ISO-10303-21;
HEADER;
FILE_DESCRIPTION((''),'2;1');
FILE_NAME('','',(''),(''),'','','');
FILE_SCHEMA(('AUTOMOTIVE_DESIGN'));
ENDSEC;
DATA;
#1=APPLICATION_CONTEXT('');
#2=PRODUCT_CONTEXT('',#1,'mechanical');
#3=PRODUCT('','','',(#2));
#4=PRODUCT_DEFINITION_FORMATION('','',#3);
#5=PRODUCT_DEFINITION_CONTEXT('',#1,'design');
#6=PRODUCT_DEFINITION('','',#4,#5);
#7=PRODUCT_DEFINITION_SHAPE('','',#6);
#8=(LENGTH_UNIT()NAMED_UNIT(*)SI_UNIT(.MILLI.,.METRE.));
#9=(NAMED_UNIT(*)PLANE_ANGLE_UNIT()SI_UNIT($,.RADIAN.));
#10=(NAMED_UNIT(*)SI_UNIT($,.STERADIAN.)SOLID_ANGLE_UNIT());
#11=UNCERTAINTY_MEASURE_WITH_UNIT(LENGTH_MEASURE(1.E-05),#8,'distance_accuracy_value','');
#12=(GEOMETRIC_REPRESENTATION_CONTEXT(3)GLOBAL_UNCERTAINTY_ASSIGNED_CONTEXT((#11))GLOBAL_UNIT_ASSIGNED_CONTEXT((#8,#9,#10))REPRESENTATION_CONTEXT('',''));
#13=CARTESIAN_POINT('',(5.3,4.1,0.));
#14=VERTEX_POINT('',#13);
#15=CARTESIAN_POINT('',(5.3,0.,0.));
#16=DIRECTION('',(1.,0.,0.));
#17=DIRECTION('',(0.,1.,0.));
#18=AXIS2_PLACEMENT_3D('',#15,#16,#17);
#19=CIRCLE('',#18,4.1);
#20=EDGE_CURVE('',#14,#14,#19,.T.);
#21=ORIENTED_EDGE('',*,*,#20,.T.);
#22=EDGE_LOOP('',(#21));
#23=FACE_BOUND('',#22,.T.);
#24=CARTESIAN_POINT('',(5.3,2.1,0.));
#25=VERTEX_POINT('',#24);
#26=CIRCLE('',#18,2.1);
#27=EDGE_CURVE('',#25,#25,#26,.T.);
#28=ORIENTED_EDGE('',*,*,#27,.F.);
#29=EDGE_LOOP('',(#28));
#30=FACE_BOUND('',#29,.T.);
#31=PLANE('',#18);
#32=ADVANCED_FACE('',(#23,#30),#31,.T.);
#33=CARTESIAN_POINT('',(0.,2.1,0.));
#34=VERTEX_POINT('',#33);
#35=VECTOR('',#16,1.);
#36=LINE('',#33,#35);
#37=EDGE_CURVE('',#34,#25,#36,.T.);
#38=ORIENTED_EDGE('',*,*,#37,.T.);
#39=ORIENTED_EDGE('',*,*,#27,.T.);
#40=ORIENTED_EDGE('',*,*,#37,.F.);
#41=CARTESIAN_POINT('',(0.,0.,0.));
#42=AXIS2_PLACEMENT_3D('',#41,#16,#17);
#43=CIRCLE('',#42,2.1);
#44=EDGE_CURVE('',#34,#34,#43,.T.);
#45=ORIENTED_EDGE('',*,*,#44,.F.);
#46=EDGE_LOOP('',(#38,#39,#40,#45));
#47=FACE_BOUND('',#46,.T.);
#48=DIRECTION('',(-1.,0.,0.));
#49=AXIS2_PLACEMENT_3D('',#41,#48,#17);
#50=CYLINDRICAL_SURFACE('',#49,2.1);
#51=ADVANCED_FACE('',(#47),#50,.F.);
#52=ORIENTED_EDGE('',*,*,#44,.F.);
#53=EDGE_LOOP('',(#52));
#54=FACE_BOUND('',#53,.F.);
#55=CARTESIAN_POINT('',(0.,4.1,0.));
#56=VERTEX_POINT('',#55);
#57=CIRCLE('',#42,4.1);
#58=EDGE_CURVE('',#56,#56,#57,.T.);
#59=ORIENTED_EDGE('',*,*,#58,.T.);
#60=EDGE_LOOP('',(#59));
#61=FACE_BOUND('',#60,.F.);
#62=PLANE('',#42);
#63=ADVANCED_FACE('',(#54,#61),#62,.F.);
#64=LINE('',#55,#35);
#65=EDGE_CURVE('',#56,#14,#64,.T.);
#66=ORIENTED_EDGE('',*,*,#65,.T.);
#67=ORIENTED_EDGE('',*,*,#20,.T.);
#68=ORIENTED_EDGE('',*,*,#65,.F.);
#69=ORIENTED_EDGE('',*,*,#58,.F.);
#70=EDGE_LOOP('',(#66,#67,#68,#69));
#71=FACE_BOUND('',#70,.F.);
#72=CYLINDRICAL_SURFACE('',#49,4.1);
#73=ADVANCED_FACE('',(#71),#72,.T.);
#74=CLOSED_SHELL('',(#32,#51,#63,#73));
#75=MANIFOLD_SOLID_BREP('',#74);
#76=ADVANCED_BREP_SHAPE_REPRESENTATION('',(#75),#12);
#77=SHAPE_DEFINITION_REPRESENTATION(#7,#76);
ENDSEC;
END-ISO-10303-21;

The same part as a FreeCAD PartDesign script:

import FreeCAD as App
import Part
import Sketcher

doc = App.newDocument("Part")
body = doc.addObject("PartDesign::Body", "Body")

sketch1 = body.newObject("Sketcher::SketchObject", "Sketch")
sketch1.AttachmentSupport = (doc.getObject("YZ_Plane"), [""])
sketch1.MapMode = "FlatFace"
sketch1.addGeometry(Part.Circle(App.Vector(0, 0, 0), App.Vector(0, 0, 1), 4.1), False)
sketch1.addGeometry(Part.Circle(App.Vector(0, 0, 0), App.Vector(0, 0, 1), 2.1), False)
sketch1.addConstraint(Sketcher.Constraint("Coincident", 0, 3, -1, 1))
sketch1.addConstraint(Sketcher.Constraint("Coincident", 1, 3, -1, 1))
sketch1.addConstraint(Sketcher.Constraint("Diameter", 1, 4.2))
sketch1.addConstraint(Sketcher.Constraint("Diameter", 0, 8.2))
pad1 = body.newObject("PartDesign::Pad", "Pad")
pad1.Profile = sketch1
pad1.Length = 5.3

doc.recompute()
